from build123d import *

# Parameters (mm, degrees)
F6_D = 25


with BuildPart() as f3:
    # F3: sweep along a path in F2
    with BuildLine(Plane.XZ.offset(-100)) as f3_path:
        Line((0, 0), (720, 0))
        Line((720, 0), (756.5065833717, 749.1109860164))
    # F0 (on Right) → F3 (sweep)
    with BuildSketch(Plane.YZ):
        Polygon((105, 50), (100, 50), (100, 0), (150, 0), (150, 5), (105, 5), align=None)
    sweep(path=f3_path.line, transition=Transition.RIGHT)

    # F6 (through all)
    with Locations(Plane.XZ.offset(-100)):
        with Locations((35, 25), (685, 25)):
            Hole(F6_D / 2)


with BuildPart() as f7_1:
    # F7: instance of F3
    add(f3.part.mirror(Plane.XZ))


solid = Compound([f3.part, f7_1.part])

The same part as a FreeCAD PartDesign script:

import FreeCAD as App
import Part
import Sketcher
from FreeCAD import Vector
Q = App.Units.Quantity


def add_polygon(sketch, points):
    """Adds a closed chain of lines whose ends are joined by coincident constraints."""
    first, n = sketch.GeometryCount, len(points)
    for a, b in zip(points, points[1:] + points[:1]):
        sketch.addGeometry(Part.LineSegment(App.Vector(*a, 0), App.Vector(*b, 0)), False)
    for i in range(n):
        sketch.addConstraint(Sketcher.Constraint("Coincident", first + i, 2, first + (i + 1) % n, 1))

doc = App.newDocument("Part")
body = doc.addObject("PartDesign::Body", "Body")

sketch1 = doc.addObject("Sketcher::SketchObject", "Sketch")
body.addObject(sketch1)
sketch1.AttachmentSupport = (doc.YZ_Plane, [""])
sketch1.MapMode = "FlatFace"
add_polygon(sketch1, [(105, 50), (100, 50), (100, 0), (150, 0), (150, 5), (105, 5)])
sketch1.addConstraint([
    Sketcher.Constraint("Horizontal", 0),
    Sketcher.Constraint("Vertical", 1),
    Sketcher.Constraint("Horizontal", 2),
    Sketcher.Constraint("Vertical", 3),
    Sketcher.Constraint("Horizontal", 4),
    Sketcher.Constraint("Vertical", 5),
    Sketcher.Constraint("PointOnObject", 1, 2, -1),
    Sketcher.Constraint("Equal", 2, 1),
    Sketcher.Constraint("Equal", 0, 3),
    Sketcher.Constraint("DistanceX", 0, 2, 0, 1, 5.0),
    Sketcher.Constraint("DistanceX", 2, 1, 2, 2, 50.0),
    Sketcher.Constraint("DistanceX", -1, 1, 0, 2, 100.0),
])

sketch2 = doc.addObject("Sketcher::SketchObject", "Sketch001")
body.addObject(sketch2)
sketch2.AttachmentSupport = (doc.XZ_Plane, [""])
sketch2.MapMode = "FlatFace"
sketch2.AttachmentOffset = App.Placement(Vector(0, 0, -100), App.Rotation())
sketch2.addGeometry([
    Part.LineSegment(Vector(0, 0, 0), Vector(720, 0, 0)),
    Part.LineSegment(Vector(720, 0, 0), Vector(757, 749, 0)),
], False)
sketch2.addConstraint([
    Sketcher.Constraint("Coincident", 0, 2, 1, 1),
    Sketcher.Constraint("Horizontal", 0),
    Sketcher.Constraint("Coincident", 0, 1, -1, 1),
    Sketcher.Constraint("DistanceX", 0, 1, 0, 2, 720.0),
    Sketcher.Constraint("Distance", 1, 750.0),
    Sketcher.Constraint("Angle", 1, Q("87.21 deg")),
])
doc.recompute()

additivepipe = doc.addObject("PartDesign::AdditivePipe", "AdditivePipe")
body.addObject(additivepipe)
additivepipe.Profile = sketch1
additivepipe.Spine = (sketch2, ["Edge1", "Edge2"])
additivepipe.Transition = "Right corner"

sketch3 = doc.addObject("Sketcher::SketchObject", "Sketch002")
body.addObject(sketch3)
sketch3.AttachmentSupport = (doc.XZ_Plane, [""])
sketch3.MapMode = "FlatFace"
sketch3.AttachmentOffset = App.Placement(Vector(0, 0, -100), App.Rotation())
sketch3.addGeometry([
    Part.Circle(Vector(35, 25, 0), Vector(0, 0, 1), 12),
    Part.Circle(Vector(685, 25, 0), Vector(0, 0, 1), 12),
], False)
sketch3.addConstraint([
    Sketcher.Constraint("Equal", 0, 1),
    Sketcher.Constraint("Horizontal", 0, 3, 1, 3),
    Sketcher.Constraint("Diameter", 0, 25.0),
    Sketcher.Constraint("DistanceX", -1, 1, 0, 3, 35.0),
    Sketcher.Constraint("DistanceY", -1, 1, 0, 3, 25.0),
    Sketcher.Constraint("DistanceX", -1, 1, 1, 3, 685.0),
])
doc.recompute()
hole = doc.addObject("PartDesign::Hole", "Hole")
body.addObject(hole)
hole.Profile = sketch3
hole.ThreadType = "None"
hole.Diameter = 25
hole.DepthType = "ThroughAll"
body2 = doc.addObject("PartDesign::Body", "Body001")
doc.recompute()

mirroring = doc.addObject("Part::Mirroring", "Mirroring")
mirroring.Source = body
mirroring.Base = Vector(0, 0, 0)
mirroring.Normal = Vector(0, -1, 0)
body2.BaseFeature = mirroring
doc.recompute()
mirroring.Visibility = False

doc.recompute()
